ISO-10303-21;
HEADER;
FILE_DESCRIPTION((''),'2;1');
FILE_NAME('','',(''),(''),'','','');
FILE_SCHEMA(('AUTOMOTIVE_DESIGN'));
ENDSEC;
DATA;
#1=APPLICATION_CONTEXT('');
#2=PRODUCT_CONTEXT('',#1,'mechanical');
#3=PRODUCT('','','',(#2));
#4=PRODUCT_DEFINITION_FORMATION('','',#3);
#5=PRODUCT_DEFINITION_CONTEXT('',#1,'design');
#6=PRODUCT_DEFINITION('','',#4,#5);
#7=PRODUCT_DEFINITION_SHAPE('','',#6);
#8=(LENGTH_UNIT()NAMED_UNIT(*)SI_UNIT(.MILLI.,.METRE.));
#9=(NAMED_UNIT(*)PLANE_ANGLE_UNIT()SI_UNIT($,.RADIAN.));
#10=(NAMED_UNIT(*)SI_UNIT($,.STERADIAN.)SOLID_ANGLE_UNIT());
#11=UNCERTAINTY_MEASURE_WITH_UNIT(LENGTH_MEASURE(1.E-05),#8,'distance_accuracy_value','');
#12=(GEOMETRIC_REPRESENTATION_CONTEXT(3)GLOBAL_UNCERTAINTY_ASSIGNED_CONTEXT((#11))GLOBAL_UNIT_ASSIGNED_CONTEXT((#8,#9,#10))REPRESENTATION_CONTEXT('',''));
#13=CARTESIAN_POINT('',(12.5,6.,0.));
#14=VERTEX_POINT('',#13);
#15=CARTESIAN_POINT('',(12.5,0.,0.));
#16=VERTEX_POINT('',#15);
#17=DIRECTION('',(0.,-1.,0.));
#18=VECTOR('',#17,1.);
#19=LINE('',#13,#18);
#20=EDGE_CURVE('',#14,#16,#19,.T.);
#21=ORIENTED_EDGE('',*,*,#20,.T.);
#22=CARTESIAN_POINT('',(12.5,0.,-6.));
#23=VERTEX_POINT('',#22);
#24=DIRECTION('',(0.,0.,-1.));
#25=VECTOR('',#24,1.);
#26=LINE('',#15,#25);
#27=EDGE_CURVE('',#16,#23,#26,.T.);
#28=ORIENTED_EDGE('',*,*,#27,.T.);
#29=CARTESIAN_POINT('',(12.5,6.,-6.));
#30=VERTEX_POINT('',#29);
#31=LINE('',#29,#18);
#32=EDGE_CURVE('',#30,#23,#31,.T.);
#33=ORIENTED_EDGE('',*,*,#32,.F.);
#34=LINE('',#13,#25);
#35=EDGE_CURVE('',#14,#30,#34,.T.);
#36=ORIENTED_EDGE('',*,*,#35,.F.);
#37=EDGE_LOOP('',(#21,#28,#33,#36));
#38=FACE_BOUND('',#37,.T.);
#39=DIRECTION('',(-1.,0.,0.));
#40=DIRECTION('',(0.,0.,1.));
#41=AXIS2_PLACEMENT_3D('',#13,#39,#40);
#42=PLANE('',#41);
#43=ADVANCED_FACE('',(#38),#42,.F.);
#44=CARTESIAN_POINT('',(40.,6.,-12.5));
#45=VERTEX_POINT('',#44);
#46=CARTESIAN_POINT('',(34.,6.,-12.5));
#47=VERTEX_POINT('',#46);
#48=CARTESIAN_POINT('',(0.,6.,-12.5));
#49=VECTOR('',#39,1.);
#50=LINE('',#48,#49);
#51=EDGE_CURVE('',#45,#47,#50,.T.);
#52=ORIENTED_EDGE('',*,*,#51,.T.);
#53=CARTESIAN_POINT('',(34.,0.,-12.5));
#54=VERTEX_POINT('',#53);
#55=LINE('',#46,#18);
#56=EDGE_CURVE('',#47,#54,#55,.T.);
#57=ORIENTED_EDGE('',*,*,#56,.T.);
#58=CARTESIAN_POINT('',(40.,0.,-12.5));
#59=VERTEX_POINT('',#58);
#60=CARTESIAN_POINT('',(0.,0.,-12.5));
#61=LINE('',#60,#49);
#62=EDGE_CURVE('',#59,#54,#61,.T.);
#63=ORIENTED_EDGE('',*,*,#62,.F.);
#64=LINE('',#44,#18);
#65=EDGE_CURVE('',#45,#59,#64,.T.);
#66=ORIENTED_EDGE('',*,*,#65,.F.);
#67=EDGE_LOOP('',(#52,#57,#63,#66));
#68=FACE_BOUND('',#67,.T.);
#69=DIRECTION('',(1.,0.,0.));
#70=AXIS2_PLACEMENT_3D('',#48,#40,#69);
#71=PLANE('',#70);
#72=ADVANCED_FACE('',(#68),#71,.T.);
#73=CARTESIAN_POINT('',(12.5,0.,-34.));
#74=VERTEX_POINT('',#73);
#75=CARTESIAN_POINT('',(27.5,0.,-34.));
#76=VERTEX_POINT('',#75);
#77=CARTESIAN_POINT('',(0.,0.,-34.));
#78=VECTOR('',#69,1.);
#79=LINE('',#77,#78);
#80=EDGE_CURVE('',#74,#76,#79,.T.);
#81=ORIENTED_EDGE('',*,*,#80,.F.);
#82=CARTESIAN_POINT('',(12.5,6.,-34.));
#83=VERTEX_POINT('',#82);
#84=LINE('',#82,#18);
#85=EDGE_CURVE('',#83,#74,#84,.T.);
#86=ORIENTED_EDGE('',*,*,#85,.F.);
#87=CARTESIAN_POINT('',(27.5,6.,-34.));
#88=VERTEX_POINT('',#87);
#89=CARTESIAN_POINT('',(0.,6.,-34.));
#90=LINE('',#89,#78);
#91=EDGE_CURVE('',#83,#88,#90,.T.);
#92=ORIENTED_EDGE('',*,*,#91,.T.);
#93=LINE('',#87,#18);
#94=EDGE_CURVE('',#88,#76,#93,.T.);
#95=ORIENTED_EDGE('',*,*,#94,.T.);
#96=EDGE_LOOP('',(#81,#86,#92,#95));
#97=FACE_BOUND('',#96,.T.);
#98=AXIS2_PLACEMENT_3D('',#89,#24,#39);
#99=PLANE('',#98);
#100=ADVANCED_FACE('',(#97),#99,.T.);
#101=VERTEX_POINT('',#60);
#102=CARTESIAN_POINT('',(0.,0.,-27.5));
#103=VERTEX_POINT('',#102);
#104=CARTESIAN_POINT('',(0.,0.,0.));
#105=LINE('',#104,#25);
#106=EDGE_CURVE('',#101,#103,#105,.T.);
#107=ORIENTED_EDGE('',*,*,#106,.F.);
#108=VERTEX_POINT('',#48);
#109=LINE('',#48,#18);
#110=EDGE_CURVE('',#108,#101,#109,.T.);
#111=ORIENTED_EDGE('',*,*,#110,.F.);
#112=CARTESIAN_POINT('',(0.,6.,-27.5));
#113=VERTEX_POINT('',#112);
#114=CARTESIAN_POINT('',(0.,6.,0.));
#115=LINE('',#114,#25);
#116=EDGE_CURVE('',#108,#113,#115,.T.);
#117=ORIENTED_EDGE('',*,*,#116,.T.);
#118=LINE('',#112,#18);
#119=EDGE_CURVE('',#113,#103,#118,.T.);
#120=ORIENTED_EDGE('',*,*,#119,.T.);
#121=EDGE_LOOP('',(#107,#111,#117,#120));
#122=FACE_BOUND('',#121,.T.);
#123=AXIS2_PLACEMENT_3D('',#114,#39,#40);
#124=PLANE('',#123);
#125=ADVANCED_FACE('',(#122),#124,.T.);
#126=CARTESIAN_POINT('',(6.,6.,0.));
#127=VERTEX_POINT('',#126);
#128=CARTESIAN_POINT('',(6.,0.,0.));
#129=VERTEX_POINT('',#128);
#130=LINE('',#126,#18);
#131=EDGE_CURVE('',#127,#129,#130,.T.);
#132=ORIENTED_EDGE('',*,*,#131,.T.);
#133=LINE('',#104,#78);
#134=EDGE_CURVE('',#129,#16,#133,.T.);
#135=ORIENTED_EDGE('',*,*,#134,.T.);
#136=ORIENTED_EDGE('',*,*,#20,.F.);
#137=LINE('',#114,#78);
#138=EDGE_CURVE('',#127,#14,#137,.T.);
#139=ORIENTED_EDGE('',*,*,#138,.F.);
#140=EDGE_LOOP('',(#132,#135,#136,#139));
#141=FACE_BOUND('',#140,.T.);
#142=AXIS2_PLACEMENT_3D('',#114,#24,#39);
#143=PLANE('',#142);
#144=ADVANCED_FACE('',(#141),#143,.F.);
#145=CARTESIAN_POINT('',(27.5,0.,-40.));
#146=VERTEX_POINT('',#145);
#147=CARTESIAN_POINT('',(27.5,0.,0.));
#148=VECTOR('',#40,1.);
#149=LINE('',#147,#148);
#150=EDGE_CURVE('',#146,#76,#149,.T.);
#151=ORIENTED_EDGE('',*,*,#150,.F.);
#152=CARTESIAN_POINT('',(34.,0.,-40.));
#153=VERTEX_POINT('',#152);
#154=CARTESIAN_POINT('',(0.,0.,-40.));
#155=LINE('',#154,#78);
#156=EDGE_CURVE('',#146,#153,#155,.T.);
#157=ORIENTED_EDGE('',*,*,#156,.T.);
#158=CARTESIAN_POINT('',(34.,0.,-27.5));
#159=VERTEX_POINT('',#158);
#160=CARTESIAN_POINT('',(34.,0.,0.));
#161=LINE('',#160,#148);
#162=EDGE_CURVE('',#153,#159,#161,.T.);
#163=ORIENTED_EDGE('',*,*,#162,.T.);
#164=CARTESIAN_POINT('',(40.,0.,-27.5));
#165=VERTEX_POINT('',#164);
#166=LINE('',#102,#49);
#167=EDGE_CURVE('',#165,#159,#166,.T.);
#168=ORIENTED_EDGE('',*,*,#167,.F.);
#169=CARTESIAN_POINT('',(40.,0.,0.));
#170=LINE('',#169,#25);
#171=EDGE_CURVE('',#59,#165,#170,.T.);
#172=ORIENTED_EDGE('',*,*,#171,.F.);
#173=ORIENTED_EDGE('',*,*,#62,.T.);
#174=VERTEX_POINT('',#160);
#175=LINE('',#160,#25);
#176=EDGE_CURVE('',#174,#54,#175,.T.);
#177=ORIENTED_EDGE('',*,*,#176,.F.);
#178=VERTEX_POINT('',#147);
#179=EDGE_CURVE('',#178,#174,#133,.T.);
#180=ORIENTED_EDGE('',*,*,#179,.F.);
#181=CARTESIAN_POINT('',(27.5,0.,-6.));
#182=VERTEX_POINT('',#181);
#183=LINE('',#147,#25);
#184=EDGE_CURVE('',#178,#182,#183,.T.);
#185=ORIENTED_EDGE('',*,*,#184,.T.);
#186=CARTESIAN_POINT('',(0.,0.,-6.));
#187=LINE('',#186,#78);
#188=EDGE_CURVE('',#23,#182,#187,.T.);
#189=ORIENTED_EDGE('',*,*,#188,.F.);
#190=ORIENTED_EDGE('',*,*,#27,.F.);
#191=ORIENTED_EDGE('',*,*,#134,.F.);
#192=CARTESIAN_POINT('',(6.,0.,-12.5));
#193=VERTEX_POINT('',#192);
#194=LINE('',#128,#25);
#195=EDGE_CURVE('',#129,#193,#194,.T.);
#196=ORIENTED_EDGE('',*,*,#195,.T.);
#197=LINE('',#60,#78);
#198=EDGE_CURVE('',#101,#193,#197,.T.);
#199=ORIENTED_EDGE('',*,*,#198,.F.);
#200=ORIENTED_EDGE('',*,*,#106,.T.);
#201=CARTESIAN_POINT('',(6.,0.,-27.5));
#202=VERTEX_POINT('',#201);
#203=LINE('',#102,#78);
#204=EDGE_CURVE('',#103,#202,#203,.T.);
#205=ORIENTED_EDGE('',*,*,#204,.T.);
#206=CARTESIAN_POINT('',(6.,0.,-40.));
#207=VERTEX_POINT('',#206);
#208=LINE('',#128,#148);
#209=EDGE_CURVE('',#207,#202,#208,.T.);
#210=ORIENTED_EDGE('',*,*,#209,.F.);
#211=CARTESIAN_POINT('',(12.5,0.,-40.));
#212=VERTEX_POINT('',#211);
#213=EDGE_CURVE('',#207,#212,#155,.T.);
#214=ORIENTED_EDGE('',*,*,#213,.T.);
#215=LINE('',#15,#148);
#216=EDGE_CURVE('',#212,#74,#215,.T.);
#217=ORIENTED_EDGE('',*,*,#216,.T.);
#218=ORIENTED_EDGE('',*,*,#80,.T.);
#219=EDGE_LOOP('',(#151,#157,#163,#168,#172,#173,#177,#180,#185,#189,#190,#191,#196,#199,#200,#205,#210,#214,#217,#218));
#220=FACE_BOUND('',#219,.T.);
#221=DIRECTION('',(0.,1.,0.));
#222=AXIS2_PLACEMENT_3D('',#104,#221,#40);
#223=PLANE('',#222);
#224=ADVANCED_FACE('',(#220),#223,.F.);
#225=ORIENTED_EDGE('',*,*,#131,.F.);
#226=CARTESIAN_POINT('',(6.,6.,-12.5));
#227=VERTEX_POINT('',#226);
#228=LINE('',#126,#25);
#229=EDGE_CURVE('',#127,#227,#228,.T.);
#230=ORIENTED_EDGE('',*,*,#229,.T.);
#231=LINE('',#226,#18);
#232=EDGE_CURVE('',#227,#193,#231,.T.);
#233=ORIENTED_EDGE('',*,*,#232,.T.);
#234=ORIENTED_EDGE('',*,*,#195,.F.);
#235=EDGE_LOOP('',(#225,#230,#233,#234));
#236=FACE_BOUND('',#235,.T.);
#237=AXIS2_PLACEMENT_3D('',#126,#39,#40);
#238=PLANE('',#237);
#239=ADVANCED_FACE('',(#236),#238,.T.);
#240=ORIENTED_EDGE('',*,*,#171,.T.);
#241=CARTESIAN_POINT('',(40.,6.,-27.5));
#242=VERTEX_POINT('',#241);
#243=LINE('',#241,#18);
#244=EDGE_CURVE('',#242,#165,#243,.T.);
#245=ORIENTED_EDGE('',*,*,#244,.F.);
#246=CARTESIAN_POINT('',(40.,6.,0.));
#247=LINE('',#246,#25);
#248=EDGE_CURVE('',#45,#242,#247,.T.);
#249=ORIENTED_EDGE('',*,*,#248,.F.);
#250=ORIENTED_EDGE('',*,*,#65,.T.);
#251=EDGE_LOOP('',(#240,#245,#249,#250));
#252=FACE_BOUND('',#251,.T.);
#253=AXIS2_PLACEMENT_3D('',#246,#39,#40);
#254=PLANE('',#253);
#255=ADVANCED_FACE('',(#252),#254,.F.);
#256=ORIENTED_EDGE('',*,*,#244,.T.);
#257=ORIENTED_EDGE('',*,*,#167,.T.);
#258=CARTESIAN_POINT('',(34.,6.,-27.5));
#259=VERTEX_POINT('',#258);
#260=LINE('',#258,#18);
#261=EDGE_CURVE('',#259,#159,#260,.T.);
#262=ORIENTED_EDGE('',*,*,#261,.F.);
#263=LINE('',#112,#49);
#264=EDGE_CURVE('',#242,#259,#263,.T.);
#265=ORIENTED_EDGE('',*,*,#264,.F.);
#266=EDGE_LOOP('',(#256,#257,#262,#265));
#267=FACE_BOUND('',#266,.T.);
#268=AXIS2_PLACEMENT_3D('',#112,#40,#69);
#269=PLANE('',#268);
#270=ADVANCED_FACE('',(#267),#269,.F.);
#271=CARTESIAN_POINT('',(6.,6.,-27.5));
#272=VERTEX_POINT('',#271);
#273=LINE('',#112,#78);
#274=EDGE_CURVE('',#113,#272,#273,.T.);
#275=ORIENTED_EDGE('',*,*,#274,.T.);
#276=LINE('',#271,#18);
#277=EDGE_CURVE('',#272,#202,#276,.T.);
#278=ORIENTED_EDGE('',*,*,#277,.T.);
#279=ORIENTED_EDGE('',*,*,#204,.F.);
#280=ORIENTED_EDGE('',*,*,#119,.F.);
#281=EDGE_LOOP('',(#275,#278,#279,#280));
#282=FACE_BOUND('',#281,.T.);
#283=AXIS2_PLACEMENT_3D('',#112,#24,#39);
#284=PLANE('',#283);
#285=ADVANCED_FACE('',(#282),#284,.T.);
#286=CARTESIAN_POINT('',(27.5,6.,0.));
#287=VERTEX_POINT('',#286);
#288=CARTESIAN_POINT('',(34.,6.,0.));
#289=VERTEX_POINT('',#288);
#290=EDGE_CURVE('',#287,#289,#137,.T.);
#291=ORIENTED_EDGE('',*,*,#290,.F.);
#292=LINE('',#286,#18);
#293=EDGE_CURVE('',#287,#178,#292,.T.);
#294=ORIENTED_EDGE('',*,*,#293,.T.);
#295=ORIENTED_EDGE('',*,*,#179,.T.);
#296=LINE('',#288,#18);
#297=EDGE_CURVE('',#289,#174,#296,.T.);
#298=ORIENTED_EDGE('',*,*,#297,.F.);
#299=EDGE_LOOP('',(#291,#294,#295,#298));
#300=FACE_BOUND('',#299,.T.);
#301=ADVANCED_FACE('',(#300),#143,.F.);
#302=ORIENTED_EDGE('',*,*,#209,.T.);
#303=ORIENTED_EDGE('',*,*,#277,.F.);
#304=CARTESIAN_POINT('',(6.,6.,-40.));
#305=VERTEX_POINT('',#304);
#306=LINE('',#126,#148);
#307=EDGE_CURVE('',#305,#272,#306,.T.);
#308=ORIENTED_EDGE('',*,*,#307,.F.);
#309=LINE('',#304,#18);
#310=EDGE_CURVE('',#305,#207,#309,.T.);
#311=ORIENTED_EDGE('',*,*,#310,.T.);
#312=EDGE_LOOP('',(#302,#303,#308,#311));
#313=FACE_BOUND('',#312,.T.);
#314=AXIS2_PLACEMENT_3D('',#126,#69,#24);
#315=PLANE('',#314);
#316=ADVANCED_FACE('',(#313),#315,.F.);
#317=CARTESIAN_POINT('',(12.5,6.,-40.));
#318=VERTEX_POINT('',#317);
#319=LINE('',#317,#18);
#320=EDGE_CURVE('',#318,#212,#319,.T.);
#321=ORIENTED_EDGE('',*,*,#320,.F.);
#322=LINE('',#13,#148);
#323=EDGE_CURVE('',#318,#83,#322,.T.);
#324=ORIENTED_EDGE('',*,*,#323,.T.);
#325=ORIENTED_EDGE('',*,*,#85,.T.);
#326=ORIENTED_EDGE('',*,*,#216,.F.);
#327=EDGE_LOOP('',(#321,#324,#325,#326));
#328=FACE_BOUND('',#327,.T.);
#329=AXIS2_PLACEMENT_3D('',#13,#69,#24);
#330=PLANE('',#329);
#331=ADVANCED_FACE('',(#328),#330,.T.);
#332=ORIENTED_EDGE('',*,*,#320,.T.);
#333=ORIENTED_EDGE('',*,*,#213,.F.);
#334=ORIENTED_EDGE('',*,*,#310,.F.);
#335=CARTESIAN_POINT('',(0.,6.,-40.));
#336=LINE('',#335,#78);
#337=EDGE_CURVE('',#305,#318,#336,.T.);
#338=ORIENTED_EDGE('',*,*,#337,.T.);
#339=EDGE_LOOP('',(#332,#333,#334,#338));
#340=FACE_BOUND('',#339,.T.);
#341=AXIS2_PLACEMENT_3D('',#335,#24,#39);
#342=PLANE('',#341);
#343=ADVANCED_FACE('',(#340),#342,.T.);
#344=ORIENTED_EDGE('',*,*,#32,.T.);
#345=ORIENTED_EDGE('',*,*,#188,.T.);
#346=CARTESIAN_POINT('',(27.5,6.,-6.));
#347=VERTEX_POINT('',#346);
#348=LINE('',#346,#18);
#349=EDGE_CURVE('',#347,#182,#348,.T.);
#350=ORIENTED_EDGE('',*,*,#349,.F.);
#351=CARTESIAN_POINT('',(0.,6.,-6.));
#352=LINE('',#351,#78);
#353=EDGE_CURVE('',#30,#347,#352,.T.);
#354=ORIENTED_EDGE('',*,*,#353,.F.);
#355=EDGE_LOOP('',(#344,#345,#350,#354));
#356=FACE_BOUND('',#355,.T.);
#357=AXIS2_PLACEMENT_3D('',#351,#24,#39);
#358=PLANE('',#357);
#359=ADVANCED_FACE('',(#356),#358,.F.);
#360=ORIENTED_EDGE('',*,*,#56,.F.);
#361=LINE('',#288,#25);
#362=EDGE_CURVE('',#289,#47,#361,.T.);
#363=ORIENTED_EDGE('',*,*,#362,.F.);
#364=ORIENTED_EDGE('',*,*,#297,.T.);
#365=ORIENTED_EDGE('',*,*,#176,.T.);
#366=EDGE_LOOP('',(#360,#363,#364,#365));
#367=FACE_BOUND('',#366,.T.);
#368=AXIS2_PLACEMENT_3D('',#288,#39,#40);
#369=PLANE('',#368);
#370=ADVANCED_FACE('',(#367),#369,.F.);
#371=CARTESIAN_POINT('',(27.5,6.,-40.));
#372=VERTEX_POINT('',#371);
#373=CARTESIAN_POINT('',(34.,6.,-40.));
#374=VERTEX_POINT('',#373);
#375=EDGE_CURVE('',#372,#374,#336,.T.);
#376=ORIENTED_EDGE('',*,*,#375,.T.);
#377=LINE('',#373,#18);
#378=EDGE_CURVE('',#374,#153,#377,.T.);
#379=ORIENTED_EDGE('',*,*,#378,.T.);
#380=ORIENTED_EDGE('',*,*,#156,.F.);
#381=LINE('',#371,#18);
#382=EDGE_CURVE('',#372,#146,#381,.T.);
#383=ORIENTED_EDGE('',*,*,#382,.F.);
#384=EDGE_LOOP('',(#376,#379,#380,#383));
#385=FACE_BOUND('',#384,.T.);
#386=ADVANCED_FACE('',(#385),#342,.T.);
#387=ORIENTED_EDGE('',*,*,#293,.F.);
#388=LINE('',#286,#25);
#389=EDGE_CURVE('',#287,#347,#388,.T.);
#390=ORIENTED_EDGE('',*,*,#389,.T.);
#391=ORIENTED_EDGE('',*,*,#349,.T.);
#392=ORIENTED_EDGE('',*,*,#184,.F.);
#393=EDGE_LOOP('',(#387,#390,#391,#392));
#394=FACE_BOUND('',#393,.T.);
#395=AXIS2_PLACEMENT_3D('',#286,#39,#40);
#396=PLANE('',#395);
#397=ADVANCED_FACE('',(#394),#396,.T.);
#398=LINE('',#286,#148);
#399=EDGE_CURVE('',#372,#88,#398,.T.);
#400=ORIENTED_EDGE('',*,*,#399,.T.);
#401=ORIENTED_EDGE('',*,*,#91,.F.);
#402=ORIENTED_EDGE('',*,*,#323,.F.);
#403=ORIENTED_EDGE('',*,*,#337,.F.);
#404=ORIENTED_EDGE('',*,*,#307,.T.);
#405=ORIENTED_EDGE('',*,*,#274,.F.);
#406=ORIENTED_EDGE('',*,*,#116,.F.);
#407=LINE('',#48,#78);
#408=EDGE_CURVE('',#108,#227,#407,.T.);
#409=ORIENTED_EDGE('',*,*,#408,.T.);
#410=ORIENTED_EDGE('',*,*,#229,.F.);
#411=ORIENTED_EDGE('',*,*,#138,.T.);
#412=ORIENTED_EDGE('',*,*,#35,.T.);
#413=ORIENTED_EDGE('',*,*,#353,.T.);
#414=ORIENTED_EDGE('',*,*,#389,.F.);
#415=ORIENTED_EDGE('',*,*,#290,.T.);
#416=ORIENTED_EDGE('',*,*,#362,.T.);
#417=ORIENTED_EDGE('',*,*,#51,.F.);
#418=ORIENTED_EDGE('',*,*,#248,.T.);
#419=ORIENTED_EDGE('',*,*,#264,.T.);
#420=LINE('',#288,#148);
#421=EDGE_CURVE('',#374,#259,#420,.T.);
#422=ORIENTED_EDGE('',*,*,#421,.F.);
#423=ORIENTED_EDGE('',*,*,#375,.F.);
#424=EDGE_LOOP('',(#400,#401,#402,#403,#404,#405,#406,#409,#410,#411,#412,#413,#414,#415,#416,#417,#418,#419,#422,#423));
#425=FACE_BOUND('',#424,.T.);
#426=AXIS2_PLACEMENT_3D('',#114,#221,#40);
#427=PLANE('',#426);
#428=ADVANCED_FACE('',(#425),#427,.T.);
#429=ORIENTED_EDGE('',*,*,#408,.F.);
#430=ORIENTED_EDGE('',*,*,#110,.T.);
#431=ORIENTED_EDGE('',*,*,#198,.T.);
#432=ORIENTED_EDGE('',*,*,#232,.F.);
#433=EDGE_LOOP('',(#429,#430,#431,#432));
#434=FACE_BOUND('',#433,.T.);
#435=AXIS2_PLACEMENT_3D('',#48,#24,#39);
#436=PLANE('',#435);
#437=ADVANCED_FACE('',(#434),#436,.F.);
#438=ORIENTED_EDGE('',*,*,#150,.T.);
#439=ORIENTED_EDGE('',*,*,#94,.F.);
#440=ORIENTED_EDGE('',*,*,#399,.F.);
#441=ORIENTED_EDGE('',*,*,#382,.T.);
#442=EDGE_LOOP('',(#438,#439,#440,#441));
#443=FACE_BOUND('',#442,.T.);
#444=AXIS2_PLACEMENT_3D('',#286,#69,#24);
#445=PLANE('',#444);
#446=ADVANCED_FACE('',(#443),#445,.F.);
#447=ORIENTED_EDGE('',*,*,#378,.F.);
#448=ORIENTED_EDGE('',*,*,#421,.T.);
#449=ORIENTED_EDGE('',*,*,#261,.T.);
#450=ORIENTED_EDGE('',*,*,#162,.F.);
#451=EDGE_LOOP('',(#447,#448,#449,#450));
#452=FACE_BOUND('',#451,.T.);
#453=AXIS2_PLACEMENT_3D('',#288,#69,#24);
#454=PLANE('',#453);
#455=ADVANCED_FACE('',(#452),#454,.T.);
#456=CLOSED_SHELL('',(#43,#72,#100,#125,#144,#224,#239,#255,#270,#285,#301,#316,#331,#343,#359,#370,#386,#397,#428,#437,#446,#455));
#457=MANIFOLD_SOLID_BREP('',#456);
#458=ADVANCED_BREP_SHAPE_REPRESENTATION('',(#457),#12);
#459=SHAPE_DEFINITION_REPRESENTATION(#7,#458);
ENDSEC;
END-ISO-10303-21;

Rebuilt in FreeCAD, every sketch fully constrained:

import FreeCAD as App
import Part
import Sketcher
Q = App.Units.Quantity


def add_polygon(sketch, points):
    """Adds a closed chain of lines whose ends are joined by coincident constraints."""
    first, n = sketch.GeometryCount, len(points)
    for a, b in zip(points, points[1:] + points[:1]):
        sketch.addGeometry(Part.LineSegment(App.Vector(*a, 0), App.Vector(*b, 0)), False)
    for i in range(n):
        sketch.addConstraint(Sketcher.Constraint("Coincident", first + i, 2, first + (i + 1) % n, 1))

doc = App.newDocument("Part")
params = doc.addObject("Spreadsheet::Sheet", "Params")
for row, (alias, value) in enumerate([
    ("sketch1_width", "6 mm"),
    ("sketch1_width2", "15 mm"),
    ("sketch1_width3", "6.5 mm"),
    ("sketch1_height", "12.5 mm"),
    ("pad1_length", "6 mm"),
], start=1):
    params.set(f"A{row}", alias)
    params.set(f"B{row}", "=" + value)
    params.setAlias(f"B{row}", alias)

body = doc.addObject("PartDesign::Body", "Body")

sketch1 = body.newObject("Sketcher::SketchObject", "Sketch")
sketch1.AttachmentSupport = (doc.getObject("XZ_Plane"), [""])
sketch1.MapMode = "FlatFace"
add_polygon(sketch1, [(40, -12), (40, -28), (34, -28), (34, -40), (28, -40), (28, -34), (12, -34), (12, -40), (6, -40), (6, -28), (0, -28), (0, -12), (6, -12), (6, 0), (12, 0), (12, -6), (28, -6), (28, 0), (34, 0), (34, -12)])
sketch1.addConstraint([
    Sketcher.Constraint("Vertical", 0),
    Sketcher.Constraint("Horizontal", 1),
    Sketcher.Constraint("Vertical", 2),
    Sketcher.Constraint("Horizontal", 3),
    Sketcher.Constraint("Vertical", 4),
    Sketcher.Constraint("Horizontal", 5),
    Sketcher.Constraint("Vertical", 6),
    Sketcher.Constraint("Horizontal", 7),
    Sketcher.Constraint("Vertical", 8),
    Sketcher.Constraint("Horizontal", 9),
    Sketcher.Constraint("Vertical", 10),
    Sketcher.Constraint("Horizontal", 11),
    Sketcher.Constraint("Vertical", 12),
    Sketcher.Constraint("Horizontal", 13),
    Sketcher.Constraint("Vertical", 14),
    Sketcher.Constraint("Horizontal", 15),
    Sketcher.Constraint("Vertical", 16),
    Sketcher.Constraint("Horizontal", 17),
    Sketcher.Constraint("Vertical", 18),
    Sketcher.Constraint("Horizontal", 19),
    Sketcher.Constraint("PointOnObject", 9, 2, -2),
    Sketcher.Constraint("PointOnObject", 12, 2, -1),
    Sketcher.Constraint("PointOnObject", 16, 2, -1),
    Sketcher.Constraint("Horizontal", 3, 2, 6, 2),
    Sketcher.Constraint("Horizontal", 1, 2, 8, 2),
    Sketcher.Constraint("Horizontal", 11, 2, 18, 2),
    Sketcher.Constraint("Vertical", 8, 2, 11, 2),
    Sketcher.Constraint("Vertical", 6, 2, 13, 2),
    Sketcher.Constraint("Vertical", 4, 2, 15, 2),
    Sketcher.Constraint("Vertical", 2, 2, 17, 2),
    Sketcher.Constraint("Equal", 3, 7),
    Sketcher.Constraint("Equal", 1, 9),
    Sketcher.Constraint("Equal", 15, 0),
    Sketcher.Constraint("Equal", 19, 4),
    Sketcher.Constraint("Equal", 8, 12),
    Sketcher.Constraint("Equal", 6, 14),
    Sketcher.Constraint("DistanceX", 1, 2, 1, 1, Q("6 mm")),
    Sketcher.Constraint("DistanceX", 5, 2, 5, 1, Q("15 mm")),
    Sketcher.Constraint("DistanceX", 3, 2, 3, 1, Q("6.5 mm")),
    Sketcher.Constraint("DistanceY", 2, 2, 2, 1, Q("12.5 mm")),
])
sketch1.setExpression("Constraints[56]", "Params.sketch1_width")
sketch1.setExpression("Constraints[57]", "Params.sketch1_width2")
sketch1.setExpression("Constraints[58]", "Params.sketch1_width3")
sketch1.setExpression("Constraints[59]", "Params.sketch1_height")
pad1 = body.newObject("PartDesign::Pad", "Pad")
pad1.Profile = sketch1
pad1.setExpression("Length", "Params.pad1_length")
pad1.Reversed = True

doc.recompute()
